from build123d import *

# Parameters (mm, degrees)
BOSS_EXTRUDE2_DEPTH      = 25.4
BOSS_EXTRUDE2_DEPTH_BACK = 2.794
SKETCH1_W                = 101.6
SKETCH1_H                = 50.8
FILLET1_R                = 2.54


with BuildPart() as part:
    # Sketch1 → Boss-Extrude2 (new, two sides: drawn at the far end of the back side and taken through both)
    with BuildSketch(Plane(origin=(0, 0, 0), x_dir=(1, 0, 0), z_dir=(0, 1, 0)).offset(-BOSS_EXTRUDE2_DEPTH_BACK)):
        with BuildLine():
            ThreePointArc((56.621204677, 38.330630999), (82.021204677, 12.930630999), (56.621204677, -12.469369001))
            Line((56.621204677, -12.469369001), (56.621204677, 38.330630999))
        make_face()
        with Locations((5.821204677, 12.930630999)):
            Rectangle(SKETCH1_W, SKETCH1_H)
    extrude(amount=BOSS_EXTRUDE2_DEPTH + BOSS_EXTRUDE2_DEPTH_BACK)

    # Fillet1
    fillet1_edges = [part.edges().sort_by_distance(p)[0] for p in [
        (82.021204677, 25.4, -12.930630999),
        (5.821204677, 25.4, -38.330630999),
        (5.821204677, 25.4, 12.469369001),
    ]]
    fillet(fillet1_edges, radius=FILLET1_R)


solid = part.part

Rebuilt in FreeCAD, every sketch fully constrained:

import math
import FreeCAD as App
import Part
import Sketcher

V = App.Vector
Q = App.Units.Quantity


def edges_at(feature, points):
    """Names of the edges that pass closest to the given points."""
    edges = feature.Shape.Edges
    near = lambda p: min(range(len(edges)), key=lambda i: edges[i].distToShape(Part.Vertex(*p))[0])
    return sorted({f"Edge{near(p) + 1}" for p in points})

doc = App.newDocument("Part")
body = doc.addObject("PartDesign::Body", "Body")

# Sketch on XZ plane
sketch1 = body.newObject("Sketcher::SketchObject", "Sketch")
sketch1.AttachmentSupport = (doc.getObject("XZ_Plane"), [""])
sketch1.MapMode = "FlatFace"
sketch1.addGeometry([
    Part.ArcOfCircle(Part.Circle(V(56.621205, -12.930631, 0), V(0, 0, 1), 25.4), math.radians(-90), math.radians(90)),
    Part.LineSegment(V(56.621205, -38.330631, 0), V(-44.978795, -38.330631, 0)),
    Part.LineSegment(V(-44.978795, -38.330631, 0), V(-44.978795, 12.469369, 0)),
    Part.LineSegment(V(-44.978795, 12.469369, 0), V(56.621205, 12.469369, 0)),
], False)
sketch1.addConstraint([
    Sketcher.Constraint("Tangent", 0, 1, 1, 1),
    Sketcher.Constraint("Coincident", 1, 2, 2, 1),
    Sketcher.Constraint("Coincident", 2, 2, 3, 1),
    Sketcher.Constraint("Tangent", 3, 2, 0, 2),
    Sketcher.Constraint("Horizontal", 1),
    Sketcher.Constraint("Vertical", 2),
    Sketcher.Constraint("Horizontal", 3),
    Sketcher.Constraint("Radius", 0, Q("1 in")),
    Sketcher.Constraint("DistanceX", 1, 2, 1, 1, Q("4 in")),
    Sketcher.Constraint("DistanceY", 0, 3, -1, 1, 12.930631),
    Sketcher.Constraint("DistanceX", -1, 1, 0, 3, 56.621205),
])
pad1 = body.newObject("PartDesign::Pad", "Pad")
pad1.Profile = sketch1
pad1.Type = "TwoLengths"
pad1.Length = Q("1 in")
pad1.Length2 = Q("0.11 in")
pad1.Reversed = True
doc.recompute()

fillet = body.newObject("PartDesign::Fillet", "Fillet")
fillet.Base = (pad1, edges_at(pad1, [(82.021, 25.4, -12.931), (5.821, 25.4, -38.331), (5.821, 25.4, 12.469)]))
fillet.Radius = Q("0.1 in")

doc.recompute()
